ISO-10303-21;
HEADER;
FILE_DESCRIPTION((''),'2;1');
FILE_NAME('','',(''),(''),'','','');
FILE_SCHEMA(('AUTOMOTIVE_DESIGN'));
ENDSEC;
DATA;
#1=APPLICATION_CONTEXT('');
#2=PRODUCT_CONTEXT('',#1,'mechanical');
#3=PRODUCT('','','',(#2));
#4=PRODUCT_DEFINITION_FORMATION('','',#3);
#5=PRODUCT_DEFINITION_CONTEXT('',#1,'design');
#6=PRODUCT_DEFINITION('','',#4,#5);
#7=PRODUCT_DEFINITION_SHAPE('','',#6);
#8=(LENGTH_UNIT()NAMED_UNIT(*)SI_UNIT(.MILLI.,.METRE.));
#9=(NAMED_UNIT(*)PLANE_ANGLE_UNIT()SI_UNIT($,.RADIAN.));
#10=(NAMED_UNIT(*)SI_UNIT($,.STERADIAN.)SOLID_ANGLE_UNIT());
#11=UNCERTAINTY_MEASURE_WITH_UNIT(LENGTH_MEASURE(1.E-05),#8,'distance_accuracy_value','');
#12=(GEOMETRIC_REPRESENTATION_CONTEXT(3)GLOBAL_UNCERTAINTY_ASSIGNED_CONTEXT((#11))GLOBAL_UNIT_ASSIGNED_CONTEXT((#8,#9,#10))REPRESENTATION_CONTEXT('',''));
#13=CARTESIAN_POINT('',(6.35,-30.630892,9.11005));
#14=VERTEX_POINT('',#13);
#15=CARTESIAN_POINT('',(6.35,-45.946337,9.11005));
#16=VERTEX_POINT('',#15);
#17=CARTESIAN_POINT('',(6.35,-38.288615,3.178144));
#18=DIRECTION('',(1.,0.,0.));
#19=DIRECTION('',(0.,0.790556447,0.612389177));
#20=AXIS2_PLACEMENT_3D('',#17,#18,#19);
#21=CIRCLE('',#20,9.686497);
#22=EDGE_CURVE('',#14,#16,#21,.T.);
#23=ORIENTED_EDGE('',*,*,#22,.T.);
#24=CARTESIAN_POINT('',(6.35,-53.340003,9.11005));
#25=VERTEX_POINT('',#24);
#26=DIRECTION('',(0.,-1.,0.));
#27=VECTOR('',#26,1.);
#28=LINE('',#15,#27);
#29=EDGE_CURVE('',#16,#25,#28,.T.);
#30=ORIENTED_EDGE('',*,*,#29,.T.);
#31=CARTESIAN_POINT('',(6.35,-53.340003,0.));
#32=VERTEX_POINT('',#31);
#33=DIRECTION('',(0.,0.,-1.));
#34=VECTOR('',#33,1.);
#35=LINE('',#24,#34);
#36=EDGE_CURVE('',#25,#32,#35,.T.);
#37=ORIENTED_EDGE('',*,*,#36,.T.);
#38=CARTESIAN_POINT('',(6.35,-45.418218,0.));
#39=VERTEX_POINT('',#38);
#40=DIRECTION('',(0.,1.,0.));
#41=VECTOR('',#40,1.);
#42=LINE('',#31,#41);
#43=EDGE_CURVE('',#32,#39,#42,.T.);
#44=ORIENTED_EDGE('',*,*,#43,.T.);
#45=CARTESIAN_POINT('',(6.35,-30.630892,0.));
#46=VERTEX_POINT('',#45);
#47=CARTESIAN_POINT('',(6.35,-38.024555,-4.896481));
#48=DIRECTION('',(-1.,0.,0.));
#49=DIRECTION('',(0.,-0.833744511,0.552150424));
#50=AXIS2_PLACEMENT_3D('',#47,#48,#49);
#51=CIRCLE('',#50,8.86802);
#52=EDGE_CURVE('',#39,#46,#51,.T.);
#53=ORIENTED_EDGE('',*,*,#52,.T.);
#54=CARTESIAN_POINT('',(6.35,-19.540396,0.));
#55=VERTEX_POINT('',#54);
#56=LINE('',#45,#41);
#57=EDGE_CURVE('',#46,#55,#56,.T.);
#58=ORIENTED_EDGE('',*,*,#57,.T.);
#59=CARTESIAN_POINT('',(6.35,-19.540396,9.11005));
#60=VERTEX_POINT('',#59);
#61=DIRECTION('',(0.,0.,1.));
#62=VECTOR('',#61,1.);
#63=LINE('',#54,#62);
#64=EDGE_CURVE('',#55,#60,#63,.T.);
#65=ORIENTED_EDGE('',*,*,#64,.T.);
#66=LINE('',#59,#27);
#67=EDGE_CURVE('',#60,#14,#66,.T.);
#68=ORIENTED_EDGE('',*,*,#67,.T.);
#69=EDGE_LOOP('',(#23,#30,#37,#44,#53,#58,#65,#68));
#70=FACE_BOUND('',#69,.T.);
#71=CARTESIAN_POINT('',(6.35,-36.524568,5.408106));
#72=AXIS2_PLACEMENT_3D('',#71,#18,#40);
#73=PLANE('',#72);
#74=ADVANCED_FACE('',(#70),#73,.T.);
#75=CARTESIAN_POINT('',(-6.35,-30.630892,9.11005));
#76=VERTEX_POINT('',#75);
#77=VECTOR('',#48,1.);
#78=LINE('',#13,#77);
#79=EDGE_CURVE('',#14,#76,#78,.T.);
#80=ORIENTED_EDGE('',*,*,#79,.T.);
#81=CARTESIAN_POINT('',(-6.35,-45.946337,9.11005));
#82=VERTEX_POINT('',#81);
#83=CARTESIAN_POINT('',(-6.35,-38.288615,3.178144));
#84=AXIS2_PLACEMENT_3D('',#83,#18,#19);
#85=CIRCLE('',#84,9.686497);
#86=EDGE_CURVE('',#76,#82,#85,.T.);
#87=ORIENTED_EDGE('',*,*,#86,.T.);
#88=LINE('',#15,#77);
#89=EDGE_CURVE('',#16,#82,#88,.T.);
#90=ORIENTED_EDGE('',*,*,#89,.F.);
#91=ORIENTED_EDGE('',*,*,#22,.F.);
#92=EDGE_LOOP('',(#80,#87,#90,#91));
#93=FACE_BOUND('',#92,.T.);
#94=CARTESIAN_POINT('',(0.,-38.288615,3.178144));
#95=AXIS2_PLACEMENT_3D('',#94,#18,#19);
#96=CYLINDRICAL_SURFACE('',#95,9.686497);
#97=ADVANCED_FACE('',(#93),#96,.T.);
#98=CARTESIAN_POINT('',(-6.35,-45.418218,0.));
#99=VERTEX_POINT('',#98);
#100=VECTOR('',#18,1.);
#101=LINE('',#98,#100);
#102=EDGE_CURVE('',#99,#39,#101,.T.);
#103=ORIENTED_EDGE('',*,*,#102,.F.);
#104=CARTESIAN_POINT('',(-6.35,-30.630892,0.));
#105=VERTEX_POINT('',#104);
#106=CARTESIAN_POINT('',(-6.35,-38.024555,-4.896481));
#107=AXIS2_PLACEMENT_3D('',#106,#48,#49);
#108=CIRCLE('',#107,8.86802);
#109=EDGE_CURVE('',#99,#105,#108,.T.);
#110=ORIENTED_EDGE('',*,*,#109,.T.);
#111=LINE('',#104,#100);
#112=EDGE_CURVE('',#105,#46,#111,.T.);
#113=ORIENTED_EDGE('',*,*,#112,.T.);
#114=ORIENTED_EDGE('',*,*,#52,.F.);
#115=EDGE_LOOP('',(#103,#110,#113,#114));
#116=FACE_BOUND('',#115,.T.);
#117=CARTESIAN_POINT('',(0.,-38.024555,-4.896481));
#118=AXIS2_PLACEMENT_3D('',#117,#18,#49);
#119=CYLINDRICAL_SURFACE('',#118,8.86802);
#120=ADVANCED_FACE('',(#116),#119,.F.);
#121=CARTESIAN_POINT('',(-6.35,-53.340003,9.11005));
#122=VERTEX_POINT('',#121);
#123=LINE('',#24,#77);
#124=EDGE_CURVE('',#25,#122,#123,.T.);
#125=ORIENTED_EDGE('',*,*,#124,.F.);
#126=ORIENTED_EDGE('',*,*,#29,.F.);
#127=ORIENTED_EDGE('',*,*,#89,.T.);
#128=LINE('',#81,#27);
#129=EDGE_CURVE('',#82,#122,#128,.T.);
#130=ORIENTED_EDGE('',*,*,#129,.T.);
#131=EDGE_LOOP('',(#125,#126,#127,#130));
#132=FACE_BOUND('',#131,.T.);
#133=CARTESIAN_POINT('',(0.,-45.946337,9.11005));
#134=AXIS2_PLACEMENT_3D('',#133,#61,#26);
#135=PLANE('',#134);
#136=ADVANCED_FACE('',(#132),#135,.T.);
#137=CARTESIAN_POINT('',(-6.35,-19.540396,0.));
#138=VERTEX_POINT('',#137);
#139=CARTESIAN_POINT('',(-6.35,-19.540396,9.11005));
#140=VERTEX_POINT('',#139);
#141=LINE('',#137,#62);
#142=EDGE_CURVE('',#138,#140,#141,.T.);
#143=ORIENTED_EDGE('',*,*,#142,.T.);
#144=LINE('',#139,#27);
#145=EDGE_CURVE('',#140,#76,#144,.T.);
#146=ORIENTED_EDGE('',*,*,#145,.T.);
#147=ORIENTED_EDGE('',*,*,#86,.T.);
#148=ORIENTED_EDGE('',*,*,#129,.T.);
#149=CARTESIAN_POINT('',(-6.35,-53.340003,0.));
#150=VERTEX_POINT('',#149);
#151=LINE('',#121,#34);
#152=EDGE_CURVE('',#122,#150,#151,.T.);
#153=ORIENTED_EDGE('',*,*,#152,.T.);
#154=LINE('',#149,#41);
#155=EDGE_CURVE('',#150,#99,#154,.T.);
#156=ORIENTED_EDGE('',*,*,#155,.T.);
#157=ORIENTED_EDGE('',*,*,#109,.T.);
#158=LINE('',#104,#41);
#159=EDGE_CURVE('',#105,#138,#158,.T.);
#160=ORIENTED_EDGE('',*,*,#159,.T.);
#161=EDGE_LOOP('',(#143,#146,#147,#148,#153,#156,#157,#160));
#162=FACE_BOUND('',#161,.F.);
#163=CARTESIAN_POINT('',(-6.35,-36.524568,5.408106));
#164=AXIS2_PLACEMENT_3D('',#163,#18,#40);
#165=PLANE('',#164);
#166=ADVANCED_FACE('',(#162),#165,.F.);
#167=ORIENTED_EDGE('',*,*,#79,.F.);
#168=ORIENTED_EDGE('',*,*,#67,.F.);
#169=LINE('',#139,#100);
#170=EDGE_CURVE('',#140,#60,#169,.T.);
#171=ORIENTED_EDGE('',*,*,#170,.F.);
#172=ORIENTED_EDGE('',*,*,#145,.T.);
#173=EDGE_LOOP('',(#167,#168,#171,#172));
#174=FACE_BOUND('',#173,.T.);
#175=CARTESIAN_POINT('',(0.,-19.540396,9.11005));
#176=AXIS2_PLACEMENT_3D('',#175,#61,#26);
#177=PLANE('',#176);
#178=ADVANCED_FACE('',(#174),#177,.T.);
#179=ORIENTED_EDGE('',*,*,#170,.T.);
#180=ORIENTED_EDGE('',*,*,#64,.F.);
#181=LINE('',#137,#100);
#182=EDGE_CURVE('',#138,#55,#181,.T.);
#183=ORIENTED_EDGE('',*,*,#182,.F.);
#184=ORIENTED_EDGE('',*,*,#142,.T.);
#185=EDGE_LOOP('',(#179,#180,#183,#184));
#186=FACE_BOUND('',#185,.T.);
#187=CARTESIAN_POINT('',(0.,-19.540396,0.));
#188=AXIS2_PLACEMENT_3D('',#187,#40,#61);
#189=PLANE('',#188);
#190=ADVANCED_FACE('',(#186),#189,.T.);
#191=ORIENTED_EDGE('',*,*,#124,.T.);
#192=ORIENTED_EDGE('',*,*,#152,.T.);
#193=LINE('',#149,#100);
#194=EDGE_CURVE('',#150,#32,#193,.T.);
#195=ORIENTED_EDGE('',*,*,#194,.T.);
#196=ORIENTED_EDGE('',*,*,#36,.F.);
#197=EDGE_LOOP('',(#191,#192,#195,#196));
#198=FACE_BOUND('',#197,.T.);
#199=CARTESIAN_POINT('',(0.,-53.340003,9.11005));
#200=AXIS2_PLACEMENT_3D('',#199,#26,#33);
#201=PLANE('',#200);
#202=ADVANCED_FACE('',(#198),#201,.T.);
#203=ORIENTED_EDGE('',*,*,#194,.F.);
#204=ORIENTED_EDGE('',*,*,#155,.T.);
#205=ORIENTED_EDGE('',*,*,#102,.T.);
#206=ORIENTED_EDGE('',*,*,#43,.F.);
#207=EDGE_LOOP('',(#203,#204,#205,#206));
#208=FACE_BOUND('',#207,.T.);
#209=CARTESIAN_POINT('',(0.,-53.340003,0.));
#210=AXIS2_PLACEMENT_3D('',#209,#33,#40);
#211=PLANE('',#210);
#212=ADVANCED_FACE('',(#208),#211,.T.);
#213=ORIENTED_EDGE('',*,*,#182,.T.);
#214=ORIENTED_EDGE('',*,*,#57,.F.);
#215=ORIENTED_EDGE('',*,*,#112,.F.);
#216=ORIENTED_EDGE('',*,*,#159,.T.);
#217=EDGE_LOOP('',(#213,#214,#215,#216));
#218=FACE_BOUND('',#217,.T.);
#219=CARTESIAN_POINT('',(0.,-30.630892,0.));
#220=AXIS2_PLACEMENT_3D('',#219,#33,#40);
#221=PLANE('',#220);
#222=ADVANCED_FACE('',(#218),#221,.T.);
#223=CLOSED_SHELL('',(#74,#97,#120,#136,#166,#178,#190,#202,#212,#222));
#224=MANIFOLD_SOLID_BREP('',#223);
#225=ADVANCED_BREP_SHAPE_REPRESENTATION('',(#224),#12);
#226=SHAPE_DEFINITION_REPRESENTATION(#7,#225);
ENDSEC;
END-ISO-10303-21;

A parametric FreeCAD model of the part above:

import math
import FreeCAD as App
import Part
import Sketcher
from FreeCAD import Vector
Q = App.Units.Quantity

doc = App.newDocument("Part")
params = doc.addObject("Spreadsheet::Sheet", "Params")
for row, (alias, value) in enumerate([
    ("pad1_length", "0.5 in"),
], start=1):
    params.set(f"A{row}", alias)
    params.set(f"B{row}", "=" + value)
    params.setAlias(f"B{row}", alias)

body = doc.addObject("PartDesign::Body", "Body")

sketch1 = doc.addObject("Sketcher::SketchObject", "Sketch")
body.addObject(sketch1)
sketch1.AttachmentSupport = (doc.YZ_Plane, [""])
sketch1.MapMode = "FlatFace"
sketch1.addGeometry(Part.LineSegment(Vector(-53, 9, 0), Vector(-53, 0, 0)), False)
sketch1.addGeometry(Part.LineSegment(Vector(-53, 0, 0), Vector(-45, 0, 0)), False)
sketch1.addGeometry(Part.ArcOfCircle(Part.Circle(Vector(-38, -5, 0), Vector(0, 0, 1), 9), math.radians(34), math.radians(146)), False)
sketch1.addGeometry(Part.LineSegment(Vector(-31, 0, 0), Vector(-20, 0, 0)), False)
sketch1.addGeometry(Part.LineSegment(Vector(-20, 0, 0), Vector(-20, 9, 0)), False)
sketch1.addGeometry(Part.LineSegment(Vector(-20, 9, 0), Vector(-31, 9, 0)), False)
sketch1.addGeometry(Part.ArcOfCircle(Part.Circle(Vector(-38, 3, 0), Vector(0, 0, 1), 10), math.radians(38), math.radians(142)), False)
sketch1.addGeometry(Part.LineSegment(Vector(-46, 9, 0), Vector(-53, 9, 0)), False)
sketch1.addConstraint(Sketcher.Constraint("Coincident", 0, 2, 1, 1))
sketch1.addConstraint(Sketcher.Constraint("Coincident", 1, 2, 2, 2))
sketch1.addConstraint(Sketcher.Constraint("Coincident", 2, 1, 3, 1))
sketch1.addConstraint(Sketcher.Constraint("Coincident", 3, 2, 4, 1))
sketch1.addConstraint(Sketcher.Constraint("Coincident", 4, 2, 5, 1))
sketch1.addConstraint(Sketcher.Constraint("Coincident", 5, 2, 6, 1))
sketch1.addConstraint(Sketcher.Constraint("Coincident", 6, 2, 7, 1))
sketch1.addConstraint(Sketcher.Constraint("Coincident", 7, 2, 0, 1))
sketch1.addConstraint(Sketcher.Constraint("Vertical", 0))
sketch1.addConstraint(Sketcher.Constraint("Horizontal", 1))
sketch1.addConstraint(Sketcher.Constraint("Horizontal", 3))
sketch1.addConstraint(Sketcher.Constraint("Vertical", 4))
sketch1.addConstraint(Sketcher.Constraint("Horizontal", 5))
sketch1.addConstraint(Sketcher.Constraint("Horizontal", 7))
sketch1.addConstraint(Sketcher.Constraint("PointOnObject", 0, 2, -1))
sketch1.addConstraint(Sketcher.Constraint("PointOnObject", 2, 1, -1))
sketch1.addConstraint(Sketcher.Constraint("Horizontal", 5, 2, 6, 2))
sketch1.addConstraint(Sketcher.Constraint("Vertical", 2, 1, 5, 2))
sketch1.addConstraint(Sketcher.Constraint("DistanceX", 0, 2, -1, 1, Q("2.1000001 in")))
sketch1.addConstraint(Sketcher.Constraint("Radius", 2, 8.86802))
sketch1.addConstraint(Sketcher.Constraint("Radius", 6, 9.686497))
sketch1.addConstraint(Sketcher.Constraint("DistanceY", 0, 2, 0, 1, 9.11005))
sketch1.addConstraint(Sketcher.Constraint("DistanceX", 1, 1, 1, 2, 7.921785))
sketch1.addConstraint(Sketcher.Constraint("DistanceX", 3, 1, 3, 2, 11.090496))
sketch1.addConstraint(Sketcher.Constraint("DistanceX", 7, 2, 7, 1, 7.393666))
sketch1.addConstraint(Sketcher.Constraint("DistanceY", 2, 3, -1, 1, 4.896481))
pad1 = doc.addObject("PartDesign::Pad", "Pad")
body.addObject(pad1)
pad1.Profile = sketch1
pad1.setExpression("Length", "Params.pad1_length")
pad1.Midplane = True

doc.recompute()
